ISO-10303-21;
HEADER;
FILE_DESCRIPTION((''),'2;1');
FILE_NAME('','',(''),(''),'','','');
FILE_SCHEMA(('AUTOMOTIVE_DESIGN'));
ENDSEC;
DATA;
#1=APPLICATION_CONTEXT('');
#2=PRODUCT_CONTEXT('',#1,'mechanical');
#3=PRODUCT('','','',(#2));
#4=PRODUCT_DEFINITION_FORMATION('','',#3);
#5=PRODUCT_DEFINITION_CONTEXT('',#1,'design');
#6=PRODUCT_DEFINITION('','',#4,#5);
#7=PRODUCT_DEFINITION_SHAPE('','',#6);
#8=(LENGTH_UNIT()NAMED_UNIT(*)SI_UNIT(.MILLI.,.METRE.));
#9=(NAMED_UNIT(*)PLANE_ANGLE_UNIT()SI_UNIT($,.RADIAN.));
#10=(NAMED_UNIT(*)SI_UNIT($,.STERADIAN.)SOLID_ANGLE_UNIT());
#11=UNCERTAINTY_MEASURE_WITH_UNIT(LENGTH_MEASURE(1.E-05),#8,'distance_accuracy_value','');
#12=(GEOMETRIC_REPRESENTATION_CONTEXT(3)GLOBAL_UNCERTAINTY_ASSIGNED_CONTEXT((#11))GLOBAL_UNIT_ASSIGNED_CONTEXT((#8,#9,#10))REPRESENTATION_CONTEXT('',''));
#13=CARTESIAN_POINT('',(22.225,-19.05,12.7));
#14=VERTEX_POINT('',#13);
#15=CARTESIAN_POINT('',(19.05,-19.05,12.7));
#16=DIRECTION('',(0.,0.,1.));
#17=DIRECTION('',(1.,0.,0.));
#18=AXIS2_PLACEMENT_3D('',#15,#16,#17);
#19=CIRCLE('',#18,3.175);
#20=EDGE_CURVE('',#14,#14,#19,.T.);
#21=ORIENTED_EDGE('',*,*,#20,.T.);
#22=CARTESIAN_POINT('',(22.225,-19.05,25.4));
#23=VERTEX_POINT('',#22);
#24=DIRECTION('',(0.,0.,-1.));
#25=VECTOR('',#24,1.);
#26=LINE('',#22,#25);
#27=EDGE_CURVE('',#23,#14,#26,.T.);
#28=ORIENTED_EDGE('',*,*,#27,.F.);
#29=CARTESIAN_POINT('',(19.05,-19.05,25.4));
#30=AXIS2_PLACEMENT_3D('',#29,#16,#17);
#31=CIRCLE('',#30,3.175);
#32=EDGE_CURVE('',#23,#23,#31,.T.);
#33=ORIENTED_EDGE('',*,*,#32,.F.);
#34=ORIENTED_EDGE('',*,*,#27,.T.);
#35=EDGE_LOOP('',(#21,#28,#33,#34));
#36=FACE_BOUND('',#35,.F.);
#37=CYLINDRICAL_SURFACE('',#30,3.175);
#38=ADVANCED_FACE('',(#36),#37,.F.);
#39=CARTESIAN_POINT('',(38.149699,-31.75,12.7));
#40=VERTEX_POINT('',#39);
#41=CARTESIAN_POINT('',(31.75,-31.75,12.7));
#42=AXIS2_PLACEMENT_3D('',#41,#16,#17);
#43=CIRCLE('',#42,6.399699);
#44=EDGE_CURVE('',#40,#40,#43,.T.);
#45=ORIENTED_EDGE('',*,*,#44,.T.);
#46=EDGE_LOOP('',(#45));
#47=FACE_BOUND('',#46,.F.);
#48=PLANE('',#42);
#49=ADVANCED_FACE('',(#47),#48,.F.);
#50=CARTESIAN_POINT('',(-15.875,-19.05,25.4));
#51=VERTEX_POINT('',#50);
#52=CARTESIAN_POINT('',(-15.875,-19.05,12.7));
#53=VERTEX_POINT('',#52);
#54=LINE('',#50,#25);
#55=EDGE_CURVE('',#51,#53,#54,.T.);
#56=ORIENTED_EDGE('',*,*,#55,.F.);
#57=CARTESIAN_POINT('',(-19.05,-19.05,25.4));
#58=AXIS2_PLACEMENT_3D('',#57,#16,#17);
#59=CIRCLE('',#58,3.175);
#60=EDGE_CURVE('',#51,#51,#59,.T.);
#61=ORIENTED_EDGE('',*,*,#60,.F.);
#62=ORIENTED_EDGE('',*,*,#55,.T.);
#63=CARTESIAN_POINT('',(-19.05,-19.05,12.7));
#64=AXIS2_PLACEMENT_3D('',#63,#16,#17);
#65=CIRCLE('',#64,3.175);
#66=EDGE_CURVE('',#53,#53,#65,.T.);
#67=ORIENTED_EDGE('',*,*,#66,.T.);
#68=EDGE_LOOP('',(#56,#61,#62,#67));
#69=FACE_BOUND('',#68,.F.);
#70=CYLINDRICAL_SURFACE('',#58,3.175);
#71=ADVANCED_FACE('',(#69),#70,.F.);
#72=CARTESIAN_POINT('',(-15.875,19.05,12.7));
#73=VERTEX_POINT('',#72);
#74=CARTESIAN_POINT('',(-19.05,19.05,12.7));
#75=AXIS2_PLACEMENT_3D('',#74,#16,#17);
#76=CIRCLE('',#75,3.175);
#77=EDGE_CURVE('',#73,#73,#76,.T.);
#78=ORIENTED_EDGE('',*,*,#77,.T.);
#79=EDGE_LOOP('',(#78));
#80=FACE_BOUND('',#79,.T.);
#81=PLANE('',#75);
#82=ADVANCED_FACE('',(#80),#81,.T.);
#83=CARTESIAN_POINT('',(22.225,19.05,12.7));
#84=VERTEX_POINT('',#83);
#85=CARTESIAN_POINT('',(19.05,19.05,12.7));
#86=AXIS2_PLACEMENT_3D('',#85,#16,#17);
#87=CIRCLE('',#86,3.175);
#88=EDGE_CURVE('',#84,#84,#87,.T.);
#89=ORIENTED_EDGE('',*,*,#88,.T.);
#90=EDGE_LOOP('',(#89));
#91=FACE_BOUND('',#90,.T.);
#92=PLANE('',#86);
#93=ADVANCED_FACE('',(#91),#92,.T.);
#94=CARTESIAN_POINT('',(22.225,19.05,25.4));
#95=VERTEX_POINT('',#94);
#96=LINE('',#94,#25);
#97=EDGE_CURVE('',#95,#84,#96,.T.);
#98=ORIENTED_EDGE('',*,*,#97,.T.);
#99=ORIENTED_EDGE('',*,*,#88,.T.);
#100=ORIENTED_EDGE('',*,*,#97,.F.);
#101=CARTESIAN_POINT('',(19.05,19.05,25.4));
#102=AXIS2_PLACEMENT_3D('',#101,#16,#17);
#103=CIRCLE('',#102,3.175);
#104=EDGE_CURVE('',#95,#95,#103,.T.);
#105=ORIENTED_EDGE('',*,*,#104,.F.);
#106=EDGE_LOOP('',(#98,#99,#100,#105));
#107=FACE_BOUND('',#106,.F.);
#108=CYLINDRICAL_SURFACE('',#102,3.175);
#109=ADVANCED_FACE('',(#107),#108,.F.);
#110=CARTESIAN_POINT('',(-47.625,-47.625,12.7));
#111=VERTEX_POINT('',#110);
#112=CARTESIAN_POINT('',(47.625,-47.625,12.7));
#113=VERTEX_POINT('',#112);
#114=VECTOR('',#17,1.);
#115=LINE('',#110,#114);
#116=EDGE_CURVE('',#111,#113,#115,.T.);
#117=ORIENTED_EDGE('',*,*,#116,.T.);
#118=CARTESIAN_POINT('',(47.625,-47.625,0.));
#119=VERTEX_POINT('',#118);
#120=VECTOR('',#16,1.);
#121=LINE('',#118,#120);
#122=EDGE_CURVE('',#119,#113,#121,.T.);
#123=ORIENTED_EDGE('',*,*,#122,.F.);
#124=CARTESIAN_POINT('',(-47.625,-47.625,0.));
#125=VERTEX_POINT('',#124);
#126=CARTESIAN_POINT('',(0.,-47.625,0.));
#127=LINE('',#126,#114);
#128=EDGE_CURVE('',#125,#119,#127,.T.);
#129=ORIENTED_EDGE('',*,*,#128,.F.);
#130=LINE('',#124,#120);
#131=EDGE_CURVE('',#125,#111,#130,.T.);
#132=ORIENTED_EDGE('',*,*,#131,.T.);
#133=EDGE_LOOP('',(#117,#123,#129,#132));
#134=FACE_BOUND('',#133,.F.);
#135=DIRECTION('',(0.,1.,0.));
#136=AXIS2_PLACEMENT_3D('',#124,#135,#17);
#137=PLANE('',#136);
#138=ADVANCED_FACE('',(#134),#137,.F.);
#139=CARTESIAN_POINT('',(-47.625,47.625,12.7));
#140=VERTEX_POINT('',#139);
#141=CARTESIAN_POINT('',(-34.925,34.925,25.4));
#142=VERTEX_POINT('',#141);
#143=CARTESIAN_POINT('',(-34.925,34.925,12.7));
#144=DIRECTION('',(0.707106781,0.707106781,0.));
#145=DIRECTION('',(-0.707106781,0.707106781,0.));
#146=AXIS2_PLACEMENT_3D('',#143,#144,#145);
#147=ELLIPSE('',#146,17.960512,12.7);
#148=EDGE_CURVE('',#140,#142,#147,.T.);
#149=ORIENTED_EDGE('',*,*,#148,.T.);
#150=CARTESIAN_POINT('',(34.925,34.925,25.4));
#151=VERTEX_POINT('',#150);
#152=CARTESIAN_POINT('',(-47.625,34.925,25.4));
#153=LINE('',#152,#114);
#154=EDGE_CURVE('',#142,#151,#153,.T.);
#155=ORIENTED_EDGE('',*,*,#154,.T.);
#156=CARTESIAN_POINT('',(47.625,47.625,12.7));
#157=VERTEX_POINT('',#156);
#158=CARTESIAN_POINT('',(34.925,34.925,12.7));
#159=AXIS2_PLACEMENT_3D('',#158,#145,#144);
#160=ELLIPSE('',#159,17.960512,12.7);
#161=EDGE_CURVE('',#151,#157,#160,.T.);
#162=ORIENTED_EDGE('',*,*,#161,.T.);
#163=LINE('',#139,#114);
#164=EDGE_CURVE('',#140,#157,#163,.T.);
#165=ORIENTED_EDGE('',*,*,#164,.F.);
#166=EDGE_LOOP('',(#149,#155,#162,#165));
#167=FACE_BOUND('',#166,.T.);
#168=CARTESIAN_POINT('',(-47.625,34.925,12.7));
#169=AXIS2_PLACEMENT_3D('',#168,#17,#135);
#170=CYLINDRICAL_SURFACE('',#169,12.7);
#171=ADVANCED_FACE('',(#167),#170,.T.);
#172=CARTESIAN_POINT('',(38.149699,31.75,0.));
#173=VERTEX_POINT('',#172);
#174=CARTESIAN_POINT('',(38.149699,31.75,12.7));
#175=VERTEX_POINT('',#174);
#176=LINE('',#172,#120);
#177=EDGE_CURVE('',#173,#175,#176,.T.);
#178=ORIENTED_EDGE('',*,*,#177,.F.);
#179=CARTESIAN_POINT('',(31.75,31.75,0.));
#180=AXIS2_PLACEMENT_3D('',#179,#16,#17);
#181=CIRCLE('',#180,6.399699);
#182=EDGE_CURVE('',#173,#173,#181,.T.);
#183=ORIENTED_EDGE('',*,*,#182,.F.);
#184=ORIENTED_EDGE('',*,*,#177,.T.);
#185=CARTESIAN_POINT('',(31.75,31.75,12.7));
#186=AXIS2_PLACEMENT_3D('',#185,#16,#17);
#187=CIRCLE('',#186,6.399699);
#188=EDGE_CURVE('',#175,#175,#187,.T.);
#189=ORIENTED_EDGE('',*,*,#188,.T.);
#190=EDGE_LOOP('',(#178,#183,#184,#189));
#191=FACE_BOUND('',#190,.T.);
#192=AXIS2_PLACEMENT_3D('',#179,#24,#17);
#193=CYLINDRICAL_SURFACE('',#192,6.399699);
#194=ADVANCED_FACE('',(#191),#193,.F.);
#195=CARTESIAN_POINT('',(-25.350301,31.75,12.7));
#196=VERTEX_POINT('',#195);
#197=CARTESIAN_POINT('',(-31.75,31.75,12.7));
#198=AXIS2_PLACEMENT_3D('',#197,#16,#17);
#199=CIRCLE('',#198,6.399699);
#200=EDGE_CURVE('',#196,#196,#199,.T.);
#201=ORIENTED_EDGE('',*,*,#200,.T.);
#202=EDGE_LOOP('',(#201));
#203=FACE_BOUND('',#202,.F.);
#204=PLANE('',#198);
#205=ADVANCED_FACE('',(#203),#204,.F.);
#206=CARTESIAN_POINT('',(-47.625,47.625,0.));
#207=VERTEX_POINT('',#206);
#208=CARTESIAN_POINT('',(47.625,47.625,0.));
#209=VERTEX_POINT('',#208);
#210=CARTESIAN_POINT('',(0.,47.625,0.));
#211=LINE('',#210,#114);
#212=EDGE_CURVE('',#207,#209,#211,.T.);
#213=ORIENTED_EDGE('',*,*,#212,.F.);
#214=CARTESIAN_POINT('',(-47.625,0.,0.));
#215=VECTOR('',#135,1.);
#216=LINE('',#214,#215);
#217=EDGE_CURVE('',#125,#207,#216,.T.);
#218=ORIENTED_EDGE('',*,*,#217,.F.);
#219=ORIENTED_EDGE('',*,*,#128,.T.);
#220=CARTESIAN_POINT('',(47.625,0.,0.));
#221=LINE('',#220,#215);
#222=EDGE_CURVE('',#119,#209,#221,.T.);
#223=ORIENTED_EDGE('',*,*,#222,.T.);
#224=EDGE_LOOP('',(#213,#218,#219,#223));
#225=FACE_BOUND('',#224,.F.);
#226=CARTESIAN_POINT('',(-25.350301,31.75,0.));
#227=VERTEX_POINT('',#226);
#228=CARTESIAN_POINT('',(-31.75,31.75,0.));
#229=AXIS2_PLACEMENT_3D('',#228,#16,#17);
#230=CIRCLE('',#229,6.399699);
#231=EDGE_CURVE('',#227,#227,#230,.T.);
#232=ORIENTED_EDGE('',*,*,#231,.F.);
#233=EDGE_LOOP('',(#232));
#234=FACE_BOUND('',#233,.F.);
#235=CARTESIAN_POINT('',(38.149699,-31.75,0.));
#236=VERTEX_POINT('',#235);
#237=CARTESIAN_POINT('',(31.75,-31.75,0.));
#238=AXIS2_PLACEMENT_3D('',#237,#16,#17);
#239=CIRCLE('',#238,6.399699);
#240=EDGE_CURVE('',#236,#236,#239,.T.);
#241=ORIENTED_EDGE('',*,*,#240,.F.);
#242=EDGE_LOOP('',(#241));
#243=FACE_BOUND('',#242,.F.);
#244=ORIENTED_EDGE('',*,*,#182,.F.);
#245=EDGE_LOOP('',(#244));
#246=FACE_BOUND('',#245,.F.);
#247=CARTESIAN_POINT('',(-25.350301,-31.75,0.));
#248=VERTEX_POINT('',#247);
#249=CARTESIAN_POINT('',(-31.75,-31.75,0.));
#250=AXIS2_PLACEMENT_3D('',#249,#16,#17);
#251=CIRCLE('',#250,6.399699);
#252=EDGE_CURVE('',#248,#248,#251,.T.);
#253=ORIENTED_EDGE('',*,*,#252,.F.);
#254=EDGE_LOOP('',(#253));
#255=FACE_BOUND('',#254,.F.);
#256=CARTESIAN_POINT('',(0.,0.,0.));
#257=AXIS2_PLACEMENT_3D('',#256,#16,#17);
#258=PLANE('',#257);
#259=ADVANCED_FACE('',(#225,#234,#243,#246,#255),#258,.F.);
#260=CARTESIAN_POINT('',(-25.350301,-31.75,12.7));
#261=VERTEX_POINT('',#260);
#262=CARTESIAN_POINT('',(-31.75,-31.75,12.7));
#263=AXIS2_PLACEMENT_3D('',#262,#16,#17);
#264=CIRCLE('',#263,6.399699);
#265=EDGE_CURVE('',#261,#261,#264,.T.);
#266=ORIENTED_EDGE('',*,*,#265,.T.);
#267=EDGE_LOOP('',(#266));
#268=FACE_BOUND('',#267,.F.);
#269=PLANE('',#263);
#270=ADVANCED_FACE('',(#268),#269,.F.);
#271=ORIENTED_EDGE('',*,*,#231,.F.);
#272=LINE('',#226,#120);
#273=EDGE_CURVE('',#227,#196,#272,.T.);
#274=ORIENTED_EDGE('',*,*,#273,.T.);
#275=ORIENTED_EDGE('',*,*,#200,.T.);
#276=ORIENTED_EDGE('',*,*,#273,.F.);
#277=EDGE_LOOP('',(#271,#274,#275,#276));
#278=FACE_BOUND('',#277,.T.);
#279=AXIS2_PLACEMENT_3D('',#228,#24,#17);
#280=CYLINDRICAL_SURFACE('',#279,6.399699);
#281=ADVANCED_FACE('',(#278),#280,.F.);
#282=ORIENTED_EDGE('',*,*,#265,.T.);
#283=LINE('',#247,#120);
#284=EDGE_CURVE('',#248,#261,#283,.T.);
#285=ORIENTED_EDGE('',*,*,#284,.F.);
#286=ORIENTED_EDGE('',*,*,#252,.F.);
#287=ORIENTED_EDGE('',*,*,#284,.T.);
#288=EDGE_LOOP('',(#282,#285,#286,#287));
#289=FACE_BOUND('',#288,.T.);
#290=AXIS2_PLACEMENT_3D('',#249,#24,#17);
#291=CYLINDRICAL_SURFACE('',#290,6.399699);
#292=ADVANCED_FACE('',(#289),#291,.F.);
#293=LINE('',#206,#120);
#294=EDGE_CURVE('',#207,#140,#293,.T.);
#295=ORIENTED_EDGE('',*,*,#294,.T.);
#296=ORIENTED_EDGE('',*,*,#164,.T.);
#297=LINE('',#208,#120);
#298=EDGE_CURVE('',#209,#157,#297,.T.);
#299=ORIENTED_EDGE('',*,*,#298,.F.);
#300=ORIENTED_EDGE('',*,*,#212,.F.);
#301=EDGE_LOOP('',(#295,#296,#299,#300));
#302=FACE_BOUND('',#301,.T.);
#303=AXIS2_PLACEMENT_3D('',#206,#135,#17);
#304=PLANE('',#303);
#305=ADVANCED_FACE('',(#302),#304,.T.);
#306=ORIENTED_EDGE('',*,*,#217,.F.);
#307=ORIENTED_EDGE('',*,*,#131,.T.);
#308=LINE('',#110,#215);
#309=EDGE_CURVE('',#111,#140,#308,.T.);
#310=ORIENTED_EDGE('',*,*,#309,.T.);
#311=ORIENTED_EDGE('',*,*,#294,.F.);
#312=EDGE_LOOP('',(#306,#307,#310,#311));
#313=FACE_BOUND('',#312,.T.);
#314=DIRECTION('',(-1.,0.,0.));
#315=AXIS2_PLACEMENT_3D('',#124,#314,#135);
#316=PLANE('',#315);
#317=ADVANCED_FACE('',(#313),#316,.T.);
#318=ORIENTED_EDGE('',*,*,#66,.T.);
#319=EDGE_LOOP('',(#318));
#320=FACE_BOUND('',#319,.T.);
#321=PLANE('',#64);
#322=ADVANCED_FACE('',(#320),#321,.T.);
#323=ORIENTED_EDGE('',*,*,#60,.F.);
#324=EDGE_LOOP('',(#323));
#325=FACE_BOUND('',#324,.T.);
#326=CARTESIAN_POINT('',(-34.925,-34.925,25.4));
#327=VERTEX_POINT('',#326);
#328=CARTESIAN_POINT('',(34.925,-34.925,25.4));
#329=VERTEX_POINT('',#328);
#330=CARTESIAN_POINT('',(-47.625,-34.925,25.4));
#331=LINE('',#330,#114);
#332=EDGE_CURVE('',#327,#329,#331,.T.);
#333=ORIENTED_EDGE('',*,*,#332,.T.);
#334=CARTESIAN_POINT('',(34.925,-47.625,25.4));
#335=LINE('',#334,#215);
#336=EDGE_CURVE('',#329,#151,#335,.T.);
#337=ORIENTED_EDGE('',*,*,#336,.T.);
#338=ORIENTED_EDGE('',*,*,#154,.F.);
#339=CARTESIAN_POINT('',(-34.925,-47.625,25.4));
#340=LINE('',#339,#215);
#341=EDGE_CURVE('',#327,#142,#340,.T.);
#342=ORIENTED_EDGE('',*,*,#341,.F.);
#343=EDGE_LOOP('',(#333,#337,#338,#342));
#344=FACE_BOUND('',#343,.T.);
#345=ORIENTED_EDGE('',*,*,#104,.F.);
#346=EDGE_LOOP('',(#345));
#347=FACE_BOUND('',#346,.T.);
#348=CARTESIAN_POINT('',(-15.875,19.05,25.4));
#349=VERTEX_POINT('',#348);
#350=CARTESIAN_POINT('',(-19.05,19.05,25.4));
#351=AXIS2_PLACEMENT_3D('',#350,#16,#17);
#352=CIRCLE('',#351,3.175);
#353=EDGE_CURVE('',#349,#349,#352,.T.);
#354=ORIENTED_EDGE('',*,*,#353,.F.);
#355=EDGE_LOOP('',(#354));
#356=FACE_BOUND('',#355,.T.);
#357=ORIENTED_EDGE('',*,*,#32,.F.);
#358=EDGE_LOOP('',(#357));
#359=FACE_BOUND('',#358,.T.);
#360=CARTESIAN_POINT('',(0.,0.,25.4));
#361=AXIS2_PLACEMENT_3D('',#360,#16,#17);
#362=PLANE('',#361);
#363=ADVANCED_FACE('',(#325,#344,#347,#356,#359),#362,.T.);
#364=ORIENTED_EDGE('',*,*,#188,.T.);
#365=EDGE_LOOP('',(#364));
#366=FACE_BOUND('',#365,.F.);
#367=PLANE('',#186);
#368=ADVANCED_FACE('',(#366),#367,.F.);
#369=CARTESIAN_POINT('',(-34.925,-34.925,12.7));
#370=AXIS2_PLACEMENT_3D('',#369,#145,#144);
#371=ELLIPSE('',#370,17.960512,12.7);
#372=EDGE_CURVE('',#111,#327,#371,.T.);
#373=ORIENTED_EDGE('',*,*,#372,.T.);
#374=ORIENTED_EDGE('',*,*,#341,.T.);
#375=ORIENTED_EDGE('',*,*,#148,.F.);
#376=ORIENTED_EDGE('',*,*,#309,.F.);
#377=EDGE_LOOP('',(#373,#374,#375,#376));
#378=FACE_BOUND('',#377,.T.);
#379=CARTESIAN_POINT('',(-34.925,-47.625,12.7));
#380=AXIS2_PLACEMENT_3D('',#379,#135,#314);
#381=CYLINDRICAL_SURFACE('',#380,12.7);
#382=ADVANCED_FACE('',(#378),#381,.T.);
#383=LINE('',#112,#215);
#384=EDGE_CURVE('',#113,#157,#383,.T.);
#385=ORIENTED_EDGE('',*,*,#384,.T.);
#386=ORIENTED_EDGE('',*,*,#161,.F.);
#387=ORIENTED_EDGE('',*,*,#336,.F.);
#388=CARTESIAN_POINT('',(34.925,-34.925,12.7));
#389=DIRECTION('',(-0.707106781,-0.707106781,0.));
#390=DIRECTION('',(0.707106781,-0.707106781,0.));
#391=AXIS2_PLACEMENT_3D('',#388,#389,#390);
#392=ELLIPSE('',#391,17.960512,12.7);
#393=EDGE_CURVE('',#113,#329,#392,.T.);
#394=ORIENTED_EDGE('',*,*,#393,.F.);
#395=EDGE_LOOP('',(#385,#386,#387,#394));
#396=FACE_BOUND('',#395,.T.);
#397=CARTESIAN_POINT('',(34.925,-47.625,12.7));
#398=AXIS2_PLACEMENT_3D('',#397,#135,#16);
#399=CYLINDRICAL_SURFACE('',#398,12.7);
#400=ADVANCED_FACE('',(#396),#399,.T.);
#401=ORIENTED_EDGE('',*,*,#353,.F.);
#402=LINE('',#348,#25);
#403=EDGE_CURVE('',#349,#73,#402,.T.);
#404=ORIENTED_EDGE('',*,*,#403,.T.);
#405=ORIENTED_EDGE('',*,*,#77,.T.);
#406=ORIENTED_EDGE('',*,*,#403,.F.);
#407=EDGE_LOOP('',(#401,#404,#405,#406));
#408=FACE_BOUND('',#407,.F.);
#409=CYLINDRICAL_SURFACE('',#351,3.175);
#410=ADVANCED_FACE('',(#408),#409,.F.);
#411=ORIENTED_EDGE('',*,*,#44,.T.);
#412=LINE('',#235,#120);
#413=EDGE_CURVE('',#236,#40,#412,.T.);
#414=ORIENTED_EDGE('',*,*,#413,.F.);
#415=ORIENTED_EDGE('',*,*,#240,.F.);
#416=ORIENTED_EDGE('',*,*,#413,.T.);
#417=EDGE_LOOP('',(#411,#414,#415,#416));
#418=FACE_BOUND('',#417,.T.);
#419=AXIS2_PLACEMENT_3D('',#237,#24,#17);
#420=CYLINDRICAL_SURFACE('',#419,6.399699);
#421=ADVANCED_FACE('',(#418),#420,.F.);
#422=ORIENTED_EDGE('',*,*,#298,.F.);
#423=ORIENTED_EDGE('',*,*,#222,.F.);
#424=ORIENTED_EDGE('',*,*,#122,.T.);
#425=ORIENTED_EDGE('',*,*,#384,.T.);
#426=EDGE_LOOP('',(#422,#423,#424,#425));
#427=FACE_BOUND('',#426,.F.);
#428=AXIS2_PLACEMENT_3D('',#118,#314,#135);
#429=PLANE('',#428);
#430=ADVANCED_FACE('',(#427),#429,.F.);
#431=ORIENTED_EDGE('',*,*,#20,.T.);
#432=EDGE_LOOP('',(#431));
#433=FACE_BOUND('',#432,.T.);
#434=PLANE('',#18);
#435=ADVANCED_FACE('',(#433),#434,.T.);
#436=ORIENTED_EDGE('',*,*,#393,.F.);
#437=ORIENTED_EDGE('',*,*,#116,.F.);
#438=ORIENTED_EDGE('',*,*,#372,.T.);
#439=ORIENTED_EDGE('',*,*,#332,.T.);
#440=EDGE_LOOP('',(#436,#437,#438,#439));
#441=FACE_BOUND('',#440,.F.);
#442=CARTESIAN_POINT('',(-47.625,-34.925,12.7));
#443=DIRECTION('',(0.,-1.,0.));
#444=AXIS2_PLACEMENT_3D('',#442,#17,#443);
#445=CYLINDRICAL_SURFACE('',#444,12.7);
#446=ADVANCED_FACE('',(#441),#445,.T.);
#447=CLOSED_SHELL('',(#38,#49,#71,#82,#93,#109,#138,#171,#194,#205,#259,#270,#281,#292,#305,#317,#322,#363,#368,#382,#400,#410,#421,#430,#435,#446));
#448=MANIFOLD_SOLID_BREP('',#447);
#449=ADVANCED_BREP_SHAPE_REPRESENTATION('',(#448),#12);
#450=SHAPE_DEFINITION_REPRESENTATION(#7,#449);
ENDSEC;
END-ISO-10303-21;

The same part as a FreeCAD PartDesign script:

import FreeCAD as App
import Part
import Sketcher

V = App.Vector
Q = App.Units.Quantity


def edges_at(feature, points):
    """Names of the edges that pass closest to the given points."""
    edges = feature.Shape.Edges
    near = lambda p: min(range(len(edges)), key=lambda i: edges[i].distToShape(Part.Vertex(*p))[0])
    return sorted({f"Edge{near(p) + 1}" for p in points})

doc = App.newDocument("Part")
params = doc.addObject("Spreadsheet::Sheet", "Params")
for row, (alias, value) in enumerate([
    ("sketch1_width", "3.75 in"),
    ("pad1_length", "1 in"),
    ("pocket1_length", "0.5 in"),
    ("sketch3_diameter", "0.25 in"),
    ("pocket2_length", "0.5 in"),
    ("fillet_radius", "0.5 in"),
], start=1):
    params.set(f"A{row}", alias)
    params.set(f"B{row}", "=" + value)
    params.setAlias(f"B{row}", alias)

body = doc.addObject("PartDesign::Body", "Body")

# Sketch on XY plane
sketch1 = doc.addObject("Sketcher::SketchObject", "Sketch")
body.addObject(sketch1)
sketch1.AttachmentSupport = (doc.XY_Plane, [""])
sketch1.MapMode = "FlatFace"
sketch1.addGeometry(Part.LineSegment(V(-47.625, 47.625, 0), V(-47.625, -47.625, 0)), False)
sketch1.addGeometry(Part.LineSegment(V(-47.625, -47.625, 0), V(47.625, -47.625, 0)), False)
sketch1.addGeometry(Part.LineSegment(V(47.625, -47.625, 0), V(47.625, 47.625, 0)), False)
sketch1.addGeometry(Part.LineSegment(V(47.625, 47.625, 0), V(-47.625, 47.625, 0)), False)
sketch1.addConstraint(Sketcher.Constraint("Coincident", 0, 2, 1, 1))
sketch1.addConstraint(Sketcher.Constraint("Coincident", 1, 2, 2, 1))
sketch1.addConstraint(Sketcher.Constraint("Coincident", 2, 2, 3, 1))
sketch1.addConstraint(Sketcher.Constraint("Coincident", 3, 2, 0, 1))
sketch1.addConstraint(Sketcher.Constraint("Vertical", 0))
sketch1.addConstraint(Sketcher.Constraint("Horizontal", 1))
sketch1.addConstraint(Sketcher.Constraint("Vertical", 2))
sketch1.addConstraint(Sketcher.Constraint("Horizontal", 3))
sketch1.addConstraint(Sketcher.Constraint("Symmetric", 0, 2, 2, 2, -1, 1))
sketch1.addConstraint(Sketcher.Constraint("Equal", 3, 0))
sketch1.addConstraint(Sketcher.Constraint("DistanceX", 1, 1, 1, 2, Q("3.75 in")))
sketch1.setExpression("Constraints[10]", "Params.sketch1_width")
pad1 = doc.addObject("PartDesign::Pad", "Pad")
body.addObject(pad1)
pad1.Profile = sketch1
pad1.setExpression("Length", "Params.pad1_length")

# Sketch on XY plane
sketch2 = doc.addObject("Sketcher::SketchObject", "Sketch001")
body.addObject(sketch2)
sketch2.AttachmentSupport = (doc.XY_Plane, [""])
sketch2.MapMode = "FlatFace"
sketch2.addGeometry(Part.Circle(V(-31.75, 31.75, 0), V(0, 0, 1), 6.399699), False)
sketch2.addGeometry(Part.Circle(V(31.75, 31.75, 0), V(0, 0, 1), 6.399699), False)
sketch2.addGeometry(Part.Circle(V(31.75, -31.75, 0), V(0, 0, 1), 6.399699), False)
sketch2.addGeometry(Part.Circle(V(-31.75, -31.75, 0), V(0, 0, 1), 6.399699), False)
sketch2.addConstraint(Sketcher.Constraint("Equal", 0, 1))
sketch2.addConstraint(Sketcher.Constraint("Equal", 1, 2))
sketch2.addConstraint(Sketcher.Constraint("Equal", 2, 3))
sketch2.addConstraint(Sketcher.Constraint("Symmetric", 0, 3, 2, 3, -1, 1))
sketch2.addConstraint(Sketcher.Constraint("Symmetric", 1, 3, 3, 3, -1, 1))
sketch2.addConstraint(Sketcher.Constraint("Symmetric", 0, 3, 1, 3, -2))
sketch2.addConstraint(Sketcher.Constraint("DistanceX", 0, 3, 1, 3, Q("2.5 in")))
sketch2.addConstraint(Sketcher.Constraint("DistanceY", 2, 3, 1, 3, Q("2.5 in")))
sketch2.addConstraint(Sketcher.Constraint("Diameter", 0, Q("12.799398 mm")))
pocket1 = doc.addObject("PartDesign::Pocket", "Pocket")
body.addObject(pocket1)
pocket1.Profile = sketch2
pocket1.setExpression("Length", "Params.pocket1_length")
pocket1.Reversed = True

# Sketch on XY plane
sketch3 = doc.addObject("Sketcher::SketchObject", "Sketch002")
body.addObject(sketch3)
sketch3.AttachmentSupport = (doc.XY_Plane, [""])
sketch3.MapMode = "FlatFace"
sketch3.AttachmentOffset = App.Placement(V(0, 0, 1 * 25.4), App.Rotation())
sketch3.addGeometry(Part.Circle(V(-19.05, -19.05, 0), V(0, 0, 1), 3.175), False)
sketch3.addGeometry(Part.Circle(V(19.05, -19.05, 0), V(0, 0, 1), 3.175), False)
sketch3.addGeometry(Part.Circle(V(19.05, 19.05, 0), V(0, 0, 1), 3.175), False)
sketch3.addGeometry(Part.Circle(V(-19.05, 19.05, 0), V(0, 0, 1), 3.175), False)
sketch3.addConstraint(Sketcher.Constraint("Equal", 0, 1))
sketch3.addConstraint(Sketcher.Constraint("Equal", 1, 2))
sketch3.addConstraint(Sketcher.Constraint("Equal", 2, 3))
sketch3.addConstraint(Sketcher.Constraint("Symmetric", 0, 3, 2, 3, -1, 1))
sketch3.addConstraint(Sketcher.Constraint("Symmetric", 1, 3, 3, 3, -1, 1))
sketch3.addConstraint(Sketcher.Constraint("Symmetric", 0, 3, 1, 3, -2))
sketch3.addConstraint(Sketcher.Constraint("Diameter", 0, Q("0.25 in")))
sketch3.addConstraint(Sketcher.Constraint("DistanceX", 0, 3, 1, 3, Q("1.5 in")))
sketch3.addConstraint(Sketcher.Constraint("DistanceY", 1, 3, 2, 3, Q("1.5 in")))
sketch3.setExpression("Constraints[6]", "Params.sketch3_diameter")
pocket2 = doc.addObject("PartDesign::Pocket", "Pocket001")
body.addObject(pocket2)
pocket2.Profile = sketch3
pocket2.setExpression("Length", "Params.pocket2_length")
doc.recompute()

fillet = doc.addObject("PartDesign::Fillet", "Fillet")
body.addObject(fillet)
fillet.Base = (pocket2, edges_at(pocket2, [
    (-47.625, 0, 25.4),
    (0, -47.625, 25.4),
    (47.625, 0, 25.4),
    (0, 47.625, 25.4),
]))
fillet.setExpression("Radius", "Params.fillet_radius")

doc.recompute()
